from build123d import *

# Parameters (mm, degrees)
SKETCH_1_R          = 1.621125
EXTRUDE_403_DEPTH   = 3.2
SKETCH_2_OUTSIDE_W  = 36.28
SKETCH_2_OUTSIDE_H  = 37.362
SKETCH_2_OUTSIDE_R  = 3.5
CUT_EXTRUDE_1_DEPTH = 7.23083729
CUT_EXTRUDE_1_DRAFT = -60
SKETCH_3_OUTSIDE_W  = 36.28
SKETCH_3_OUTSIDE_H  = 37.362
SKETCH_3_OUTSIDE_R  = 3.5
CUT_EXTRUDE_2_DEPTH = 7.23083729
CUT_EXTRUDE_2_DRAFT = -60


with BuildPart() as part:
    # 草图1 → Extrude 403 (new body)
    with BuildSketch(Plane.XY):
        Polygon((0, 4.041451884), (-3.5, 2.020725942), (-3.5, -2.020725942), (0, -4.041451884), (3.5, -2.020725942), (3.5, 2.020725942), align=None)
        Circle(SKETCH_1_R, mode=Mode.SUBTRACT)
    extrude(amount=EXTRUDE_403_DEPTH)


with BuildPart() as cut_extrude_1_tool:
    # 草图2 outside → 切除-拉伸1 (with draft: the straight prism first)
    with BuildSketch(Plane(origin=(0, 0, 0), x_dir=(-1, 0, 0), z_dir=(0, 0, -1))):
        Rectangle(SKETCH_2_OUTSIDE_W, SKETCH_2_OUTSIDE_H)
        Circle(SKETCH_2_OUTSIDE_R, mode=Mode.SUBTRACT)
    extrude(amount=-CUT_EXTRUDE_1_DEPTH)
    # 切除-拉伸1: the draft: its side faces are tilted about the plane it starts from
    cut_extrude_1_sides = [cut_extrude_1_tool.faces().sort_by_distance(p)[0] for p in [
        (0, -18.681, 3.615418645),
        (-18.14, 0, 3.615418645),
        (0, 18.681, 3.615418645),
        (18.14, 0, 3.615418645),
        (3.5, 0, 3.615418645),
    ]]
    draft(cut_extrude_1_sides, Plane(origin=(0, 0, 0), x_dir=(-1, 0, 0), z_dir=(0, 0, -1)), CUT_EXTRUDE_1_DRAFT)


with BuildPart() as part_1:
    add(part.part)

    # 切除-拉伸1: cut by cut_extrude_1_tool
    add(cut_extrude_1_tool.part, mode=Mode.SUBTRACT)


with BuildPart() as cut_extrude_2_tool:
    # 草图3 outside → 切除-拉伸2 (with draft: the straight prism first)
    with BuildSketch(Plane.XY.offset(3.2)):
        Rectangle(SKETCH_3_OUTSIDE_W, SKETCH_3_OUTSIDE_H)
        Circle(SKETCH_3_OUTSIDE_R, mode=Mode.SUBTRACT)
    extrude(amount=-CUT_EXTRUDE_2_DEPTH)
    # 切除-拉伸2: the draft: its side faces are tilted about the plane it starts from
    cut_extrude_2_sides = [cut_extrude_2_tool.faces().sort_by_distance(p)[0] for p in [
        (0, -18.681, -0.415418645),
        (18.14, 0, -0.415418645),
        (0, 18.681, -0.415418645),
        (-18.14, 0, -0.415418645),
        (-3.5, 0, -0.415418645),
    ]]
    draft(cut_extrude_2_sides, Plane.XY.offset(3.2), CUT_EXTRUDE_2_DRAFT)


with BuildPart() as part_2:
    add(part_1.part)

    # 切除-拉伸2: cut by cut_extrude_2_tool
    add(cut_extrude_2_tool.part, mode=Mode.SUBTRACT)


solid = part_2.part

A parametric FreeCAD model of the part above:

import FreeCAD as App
import Part
import Sketcher

V = App.Vector
Q = App.Units.Quantity


def faces_at(feature, points):
    """Names of the faces that lie closest to the given points."""
    faces = feature.Shape.Faces
    near = lambda p: min(range(len(faces)), key=lambda i: faces[i].distToShape(Part.Vertex(*p))[0])
    return sorted({f"Face{near(p) + 1}" for p in points})


def add_polygon(sketch, points):
    """Adds a closed chain of lines whose ends are joined by coincident constraints."""
    first, n = sketch.GeometryCount, len(points)
    for a, b in zip(points, points[1:] + points[:1]):
        sketch.addGeometry(Part.LineSegment(App.Vector(*a, 0), App.Vector(*b, 0)), False)
    for i in range(n):
        sketch.addConstraint(Sketcher.Constraint("Coincident", first + i, 2, first + (i + 1) % n, 1))

doc = App.newDocument("Part")
params = doc.addObject("Spreadsheet::Sheet", "Params")
for row, (alias, value) in enumerate([
    ("pad1_length", "3.2 mm"),
    ("sketch2_diameter", "7 mm"),
    ("sketch2_width", "36.28 mm"),
    ("pad2_length", "7.230837 mm"),
    ("draft_angle", "60 deg"),
    ("sketch3_diameter", "7 mm"),
    ("sketch3_width", "36.28 mm"),
    ("pad3_length", "7.230837 mm"),
    ("draft2_angle", "60 deg"),
], start=1):
    params.set(f"A{row}", alias)
    params.set(f"B{row}", "=" + value)
    params.setAlias(f"B{row}", alias)

body = doc.addObject("PartDesign::Body", "Body")

# Sketch on XY plane
sketch1 = body.newObject("Sketcher::SketchObject", "Sketch")
sketch1.AttachmentSupport = (doc.getObject("XY_Plane"), [""])
sketch1.MapMode = "FlatFace"
add_polygon(sketch1, [(0, 4), (-3.5, 2), (-3.5, -2), (0, -4), (3.5, -2), (3.5, 2)])  # lines 0-5
sketch1.addGeometry(Part.Circle(V(0, 0, 0), V(0, 0, 1), 1.6), False)  # 6
sketch1.addConstraint([
    Sketcher.Constraint("Vertical", 1),
    Sketcher.Constraint("Vertical", 4),
    Sketcher.Constraint("Coincident", 6, 3, -1, 1),
    Sketcher.Constraint("Symmetric", 0, 2, 3, 2, -1, 1),
    Sketcher.Constraint("Symmetric", 2, 2, 5, 2, -1, 1),
    Sketcher.Constraint("PointOnObject", 2, 2, -2),
    Sketcher.Constraint("Parallel", 2, 5),
    Sketcher.Constraint("Horizontal", 1, 2, 3, 2),
    Sketcher.Constraint("Angle", 0, Q("-150 deg")),
    Sketcher.Constraint("DistanceX", 1, 2, 3, 2, 7.0),
    Sketcher.Constraint("Diameter", 6, 3.24225),
    Sketcher.Constraint("DistanceY", 1, 2, 1, 1, 4.041452),
])
pad1 = body.newObject("PartDesign::Pad", "Pad")
pad1.Profile = sketch1
pad1.setExpression("Length", "Params.pad1_length")
body2 = doc.addObject("PartDesign::Body", "Body001")

# Sketch on XY plane
sketch2 = body2.newObject("Sketcher::SketchObject", "Sketch001")
sketch2.AttachmentSupport = (doc.getObject("XY_Plane001"), [""])
sketch2.MapMode = "FlatFace"
add_polygon(sketch2, [(18.1, 18.7), (18.1, -18.7), (-18.1, -18.7), (-18.1, 18.7)])  # lines 0-3
sketch2.addGeometry(Part.Circle(V(0, 0, 0), V(0, 0, 1), 3.5), False)  # 4
sketch2.addConstraint([
    Sketcher.Constraint("Vertical", 0),
    Sketcher.Constraint("Horizontal", 1),
    Sketcher.Constraint("Vertical", 2),
    Sketcher.Constraint("Horizontal", 3),
    Sketcher.Constraint("Coincident", 4, 3, -1, 1),
    Sketcher.Constraint("Symmetric", 0, 2, 2, 2, -1, 1),
    Sketcher.Constraint("Diameter", 4, 7.0),
    Sketcher.Constraint("DistanceX", 1, 2, 1, 1, 36.28),
    Sketcher.Constraint("DistanceY", 0, 2, 0, 1, 37.362),
])
sketch2.setExpression("Constraints[10]", "Params.sketch2_diameter")
sketch2.setExpression("Constraints[11]", "Params.sketch2_width")
pad2 = body2.newObject("PartDesign::Pad", "Pad001")
pad2.Profile = sketch2
pad2.setExpression("Length", "Params.pad2_length")
doc.recompute()

draft = body2.newObject("PartDesign::Draft", "Draft")
draft.Base = (pad2, faces_at(pad2, [
    (0, -18.681, 3.615),
    (-18.14, 0, 3.615),
    (0, 18.681, 3.615),
    (18.14, 0, 3.615),
    (3.5, 0, 3.615),
]))
draft.NeutralPlane = (doc.getObject("XY_Plane001"), [""])
draft.setExpression("Angle", "Params.draft_angle")
draft.Reversed = False
doc.recompute()

boolean = body.newObject("PartDesign::Boolean", "Boolean")
boolean.Type = "Cut"
boolean.addObjects([body2])
body3 = doc.addObject("PartDesign::Body", "Body002")

# Sketch on XY plane
sketch3 = body3.newObject("Sketcher::SketchObject", "Sketch002")
sketch3.AttachmentSupport = (doc.getObject("XY_Plane002"), [""])
sketch3.MapMode = "FlatFace"
sketch3.AttachmentOffset = App.Placement(V(0, 0, 3.2), App.Rotation())
add_polygon(sketch3, [(-18.1, 18.7), (-18.1, -18.7), (18.1, -18.7), (18.1, 18.7)])  # lines 0-3
sketch3.addGeometry(Part.Circle(V(0, 0, 0), V(0, 0, 1), 3.5), False)  # 4
sketch3.addConstraint([
    Sketcher.Constraint("Vertical", 0),
    Sketcher.Constraint("Horizontal", 1),
    Sketcher.Constraint("Vertical", 2),
    Sketcher.Constraint("Horizontal", 3),
    Sketcher.Constraint("Coincident", 4, 3, -1, 1),
    Sketcher.Constraint("Symmetric", 0, 2, 2, 2, -1, 1),
    Sketcher.Constraint("Diameter", 4, 7.0),
    Sketcher.Constraint("DistanceX", 1, 1, 1, 2, 36.28),
    Sketcher.Constraint("DistanceY", 0, 2, 0, 1, 37.362),
])
sketch3.setExpression("Constraints[10]", "Params.sketch3_diameter")
sketch3.setExpression("Constraints[11]", "Params.sketch3_width")
pad3 = body3.newObject("PartDesign::Pad", "Pad002")
pad3.Profile = sketch3
pad3.setExpression("Length", "Params.pad3_length")
pad3.Reversed = True
doc.recompute()

datumplane = body3.newObject("PartDesign::Plane", "DatumPlane")
datumplane.AttachmentSupport = (doc.getObject("XY_Plane002"), [""])
datumplane.MapMode = "FlatFace"
datumplane.AttachmentOffset = App.Placement(V(0, 0, 3.2), App.Rotation())
draft2 = body3.newObject("PartDesign::Draft", "Draft001")
draft2.Base = (pad3, faces_at(pad3, [
    (0, -18.681, -0.415),
    (18.14, 0, -0.415),
    (0, 18.681, -0.415),
    (-18.14, 0, -0.415),
    (-3.5, 0, -0.415),
]))
draft2.NeutralPlane = (datumplane, [""])
draft2.setExpression("Angle", "Params.draft2_angle")
draft2.Reversed = True
doc.recompute()

boolean2 = body.newObject("PartDesign::Boolean", "Boolean001")
boolean2.Type = "Cut"
boolean2.addObjects([body3])

doc.recompute()
